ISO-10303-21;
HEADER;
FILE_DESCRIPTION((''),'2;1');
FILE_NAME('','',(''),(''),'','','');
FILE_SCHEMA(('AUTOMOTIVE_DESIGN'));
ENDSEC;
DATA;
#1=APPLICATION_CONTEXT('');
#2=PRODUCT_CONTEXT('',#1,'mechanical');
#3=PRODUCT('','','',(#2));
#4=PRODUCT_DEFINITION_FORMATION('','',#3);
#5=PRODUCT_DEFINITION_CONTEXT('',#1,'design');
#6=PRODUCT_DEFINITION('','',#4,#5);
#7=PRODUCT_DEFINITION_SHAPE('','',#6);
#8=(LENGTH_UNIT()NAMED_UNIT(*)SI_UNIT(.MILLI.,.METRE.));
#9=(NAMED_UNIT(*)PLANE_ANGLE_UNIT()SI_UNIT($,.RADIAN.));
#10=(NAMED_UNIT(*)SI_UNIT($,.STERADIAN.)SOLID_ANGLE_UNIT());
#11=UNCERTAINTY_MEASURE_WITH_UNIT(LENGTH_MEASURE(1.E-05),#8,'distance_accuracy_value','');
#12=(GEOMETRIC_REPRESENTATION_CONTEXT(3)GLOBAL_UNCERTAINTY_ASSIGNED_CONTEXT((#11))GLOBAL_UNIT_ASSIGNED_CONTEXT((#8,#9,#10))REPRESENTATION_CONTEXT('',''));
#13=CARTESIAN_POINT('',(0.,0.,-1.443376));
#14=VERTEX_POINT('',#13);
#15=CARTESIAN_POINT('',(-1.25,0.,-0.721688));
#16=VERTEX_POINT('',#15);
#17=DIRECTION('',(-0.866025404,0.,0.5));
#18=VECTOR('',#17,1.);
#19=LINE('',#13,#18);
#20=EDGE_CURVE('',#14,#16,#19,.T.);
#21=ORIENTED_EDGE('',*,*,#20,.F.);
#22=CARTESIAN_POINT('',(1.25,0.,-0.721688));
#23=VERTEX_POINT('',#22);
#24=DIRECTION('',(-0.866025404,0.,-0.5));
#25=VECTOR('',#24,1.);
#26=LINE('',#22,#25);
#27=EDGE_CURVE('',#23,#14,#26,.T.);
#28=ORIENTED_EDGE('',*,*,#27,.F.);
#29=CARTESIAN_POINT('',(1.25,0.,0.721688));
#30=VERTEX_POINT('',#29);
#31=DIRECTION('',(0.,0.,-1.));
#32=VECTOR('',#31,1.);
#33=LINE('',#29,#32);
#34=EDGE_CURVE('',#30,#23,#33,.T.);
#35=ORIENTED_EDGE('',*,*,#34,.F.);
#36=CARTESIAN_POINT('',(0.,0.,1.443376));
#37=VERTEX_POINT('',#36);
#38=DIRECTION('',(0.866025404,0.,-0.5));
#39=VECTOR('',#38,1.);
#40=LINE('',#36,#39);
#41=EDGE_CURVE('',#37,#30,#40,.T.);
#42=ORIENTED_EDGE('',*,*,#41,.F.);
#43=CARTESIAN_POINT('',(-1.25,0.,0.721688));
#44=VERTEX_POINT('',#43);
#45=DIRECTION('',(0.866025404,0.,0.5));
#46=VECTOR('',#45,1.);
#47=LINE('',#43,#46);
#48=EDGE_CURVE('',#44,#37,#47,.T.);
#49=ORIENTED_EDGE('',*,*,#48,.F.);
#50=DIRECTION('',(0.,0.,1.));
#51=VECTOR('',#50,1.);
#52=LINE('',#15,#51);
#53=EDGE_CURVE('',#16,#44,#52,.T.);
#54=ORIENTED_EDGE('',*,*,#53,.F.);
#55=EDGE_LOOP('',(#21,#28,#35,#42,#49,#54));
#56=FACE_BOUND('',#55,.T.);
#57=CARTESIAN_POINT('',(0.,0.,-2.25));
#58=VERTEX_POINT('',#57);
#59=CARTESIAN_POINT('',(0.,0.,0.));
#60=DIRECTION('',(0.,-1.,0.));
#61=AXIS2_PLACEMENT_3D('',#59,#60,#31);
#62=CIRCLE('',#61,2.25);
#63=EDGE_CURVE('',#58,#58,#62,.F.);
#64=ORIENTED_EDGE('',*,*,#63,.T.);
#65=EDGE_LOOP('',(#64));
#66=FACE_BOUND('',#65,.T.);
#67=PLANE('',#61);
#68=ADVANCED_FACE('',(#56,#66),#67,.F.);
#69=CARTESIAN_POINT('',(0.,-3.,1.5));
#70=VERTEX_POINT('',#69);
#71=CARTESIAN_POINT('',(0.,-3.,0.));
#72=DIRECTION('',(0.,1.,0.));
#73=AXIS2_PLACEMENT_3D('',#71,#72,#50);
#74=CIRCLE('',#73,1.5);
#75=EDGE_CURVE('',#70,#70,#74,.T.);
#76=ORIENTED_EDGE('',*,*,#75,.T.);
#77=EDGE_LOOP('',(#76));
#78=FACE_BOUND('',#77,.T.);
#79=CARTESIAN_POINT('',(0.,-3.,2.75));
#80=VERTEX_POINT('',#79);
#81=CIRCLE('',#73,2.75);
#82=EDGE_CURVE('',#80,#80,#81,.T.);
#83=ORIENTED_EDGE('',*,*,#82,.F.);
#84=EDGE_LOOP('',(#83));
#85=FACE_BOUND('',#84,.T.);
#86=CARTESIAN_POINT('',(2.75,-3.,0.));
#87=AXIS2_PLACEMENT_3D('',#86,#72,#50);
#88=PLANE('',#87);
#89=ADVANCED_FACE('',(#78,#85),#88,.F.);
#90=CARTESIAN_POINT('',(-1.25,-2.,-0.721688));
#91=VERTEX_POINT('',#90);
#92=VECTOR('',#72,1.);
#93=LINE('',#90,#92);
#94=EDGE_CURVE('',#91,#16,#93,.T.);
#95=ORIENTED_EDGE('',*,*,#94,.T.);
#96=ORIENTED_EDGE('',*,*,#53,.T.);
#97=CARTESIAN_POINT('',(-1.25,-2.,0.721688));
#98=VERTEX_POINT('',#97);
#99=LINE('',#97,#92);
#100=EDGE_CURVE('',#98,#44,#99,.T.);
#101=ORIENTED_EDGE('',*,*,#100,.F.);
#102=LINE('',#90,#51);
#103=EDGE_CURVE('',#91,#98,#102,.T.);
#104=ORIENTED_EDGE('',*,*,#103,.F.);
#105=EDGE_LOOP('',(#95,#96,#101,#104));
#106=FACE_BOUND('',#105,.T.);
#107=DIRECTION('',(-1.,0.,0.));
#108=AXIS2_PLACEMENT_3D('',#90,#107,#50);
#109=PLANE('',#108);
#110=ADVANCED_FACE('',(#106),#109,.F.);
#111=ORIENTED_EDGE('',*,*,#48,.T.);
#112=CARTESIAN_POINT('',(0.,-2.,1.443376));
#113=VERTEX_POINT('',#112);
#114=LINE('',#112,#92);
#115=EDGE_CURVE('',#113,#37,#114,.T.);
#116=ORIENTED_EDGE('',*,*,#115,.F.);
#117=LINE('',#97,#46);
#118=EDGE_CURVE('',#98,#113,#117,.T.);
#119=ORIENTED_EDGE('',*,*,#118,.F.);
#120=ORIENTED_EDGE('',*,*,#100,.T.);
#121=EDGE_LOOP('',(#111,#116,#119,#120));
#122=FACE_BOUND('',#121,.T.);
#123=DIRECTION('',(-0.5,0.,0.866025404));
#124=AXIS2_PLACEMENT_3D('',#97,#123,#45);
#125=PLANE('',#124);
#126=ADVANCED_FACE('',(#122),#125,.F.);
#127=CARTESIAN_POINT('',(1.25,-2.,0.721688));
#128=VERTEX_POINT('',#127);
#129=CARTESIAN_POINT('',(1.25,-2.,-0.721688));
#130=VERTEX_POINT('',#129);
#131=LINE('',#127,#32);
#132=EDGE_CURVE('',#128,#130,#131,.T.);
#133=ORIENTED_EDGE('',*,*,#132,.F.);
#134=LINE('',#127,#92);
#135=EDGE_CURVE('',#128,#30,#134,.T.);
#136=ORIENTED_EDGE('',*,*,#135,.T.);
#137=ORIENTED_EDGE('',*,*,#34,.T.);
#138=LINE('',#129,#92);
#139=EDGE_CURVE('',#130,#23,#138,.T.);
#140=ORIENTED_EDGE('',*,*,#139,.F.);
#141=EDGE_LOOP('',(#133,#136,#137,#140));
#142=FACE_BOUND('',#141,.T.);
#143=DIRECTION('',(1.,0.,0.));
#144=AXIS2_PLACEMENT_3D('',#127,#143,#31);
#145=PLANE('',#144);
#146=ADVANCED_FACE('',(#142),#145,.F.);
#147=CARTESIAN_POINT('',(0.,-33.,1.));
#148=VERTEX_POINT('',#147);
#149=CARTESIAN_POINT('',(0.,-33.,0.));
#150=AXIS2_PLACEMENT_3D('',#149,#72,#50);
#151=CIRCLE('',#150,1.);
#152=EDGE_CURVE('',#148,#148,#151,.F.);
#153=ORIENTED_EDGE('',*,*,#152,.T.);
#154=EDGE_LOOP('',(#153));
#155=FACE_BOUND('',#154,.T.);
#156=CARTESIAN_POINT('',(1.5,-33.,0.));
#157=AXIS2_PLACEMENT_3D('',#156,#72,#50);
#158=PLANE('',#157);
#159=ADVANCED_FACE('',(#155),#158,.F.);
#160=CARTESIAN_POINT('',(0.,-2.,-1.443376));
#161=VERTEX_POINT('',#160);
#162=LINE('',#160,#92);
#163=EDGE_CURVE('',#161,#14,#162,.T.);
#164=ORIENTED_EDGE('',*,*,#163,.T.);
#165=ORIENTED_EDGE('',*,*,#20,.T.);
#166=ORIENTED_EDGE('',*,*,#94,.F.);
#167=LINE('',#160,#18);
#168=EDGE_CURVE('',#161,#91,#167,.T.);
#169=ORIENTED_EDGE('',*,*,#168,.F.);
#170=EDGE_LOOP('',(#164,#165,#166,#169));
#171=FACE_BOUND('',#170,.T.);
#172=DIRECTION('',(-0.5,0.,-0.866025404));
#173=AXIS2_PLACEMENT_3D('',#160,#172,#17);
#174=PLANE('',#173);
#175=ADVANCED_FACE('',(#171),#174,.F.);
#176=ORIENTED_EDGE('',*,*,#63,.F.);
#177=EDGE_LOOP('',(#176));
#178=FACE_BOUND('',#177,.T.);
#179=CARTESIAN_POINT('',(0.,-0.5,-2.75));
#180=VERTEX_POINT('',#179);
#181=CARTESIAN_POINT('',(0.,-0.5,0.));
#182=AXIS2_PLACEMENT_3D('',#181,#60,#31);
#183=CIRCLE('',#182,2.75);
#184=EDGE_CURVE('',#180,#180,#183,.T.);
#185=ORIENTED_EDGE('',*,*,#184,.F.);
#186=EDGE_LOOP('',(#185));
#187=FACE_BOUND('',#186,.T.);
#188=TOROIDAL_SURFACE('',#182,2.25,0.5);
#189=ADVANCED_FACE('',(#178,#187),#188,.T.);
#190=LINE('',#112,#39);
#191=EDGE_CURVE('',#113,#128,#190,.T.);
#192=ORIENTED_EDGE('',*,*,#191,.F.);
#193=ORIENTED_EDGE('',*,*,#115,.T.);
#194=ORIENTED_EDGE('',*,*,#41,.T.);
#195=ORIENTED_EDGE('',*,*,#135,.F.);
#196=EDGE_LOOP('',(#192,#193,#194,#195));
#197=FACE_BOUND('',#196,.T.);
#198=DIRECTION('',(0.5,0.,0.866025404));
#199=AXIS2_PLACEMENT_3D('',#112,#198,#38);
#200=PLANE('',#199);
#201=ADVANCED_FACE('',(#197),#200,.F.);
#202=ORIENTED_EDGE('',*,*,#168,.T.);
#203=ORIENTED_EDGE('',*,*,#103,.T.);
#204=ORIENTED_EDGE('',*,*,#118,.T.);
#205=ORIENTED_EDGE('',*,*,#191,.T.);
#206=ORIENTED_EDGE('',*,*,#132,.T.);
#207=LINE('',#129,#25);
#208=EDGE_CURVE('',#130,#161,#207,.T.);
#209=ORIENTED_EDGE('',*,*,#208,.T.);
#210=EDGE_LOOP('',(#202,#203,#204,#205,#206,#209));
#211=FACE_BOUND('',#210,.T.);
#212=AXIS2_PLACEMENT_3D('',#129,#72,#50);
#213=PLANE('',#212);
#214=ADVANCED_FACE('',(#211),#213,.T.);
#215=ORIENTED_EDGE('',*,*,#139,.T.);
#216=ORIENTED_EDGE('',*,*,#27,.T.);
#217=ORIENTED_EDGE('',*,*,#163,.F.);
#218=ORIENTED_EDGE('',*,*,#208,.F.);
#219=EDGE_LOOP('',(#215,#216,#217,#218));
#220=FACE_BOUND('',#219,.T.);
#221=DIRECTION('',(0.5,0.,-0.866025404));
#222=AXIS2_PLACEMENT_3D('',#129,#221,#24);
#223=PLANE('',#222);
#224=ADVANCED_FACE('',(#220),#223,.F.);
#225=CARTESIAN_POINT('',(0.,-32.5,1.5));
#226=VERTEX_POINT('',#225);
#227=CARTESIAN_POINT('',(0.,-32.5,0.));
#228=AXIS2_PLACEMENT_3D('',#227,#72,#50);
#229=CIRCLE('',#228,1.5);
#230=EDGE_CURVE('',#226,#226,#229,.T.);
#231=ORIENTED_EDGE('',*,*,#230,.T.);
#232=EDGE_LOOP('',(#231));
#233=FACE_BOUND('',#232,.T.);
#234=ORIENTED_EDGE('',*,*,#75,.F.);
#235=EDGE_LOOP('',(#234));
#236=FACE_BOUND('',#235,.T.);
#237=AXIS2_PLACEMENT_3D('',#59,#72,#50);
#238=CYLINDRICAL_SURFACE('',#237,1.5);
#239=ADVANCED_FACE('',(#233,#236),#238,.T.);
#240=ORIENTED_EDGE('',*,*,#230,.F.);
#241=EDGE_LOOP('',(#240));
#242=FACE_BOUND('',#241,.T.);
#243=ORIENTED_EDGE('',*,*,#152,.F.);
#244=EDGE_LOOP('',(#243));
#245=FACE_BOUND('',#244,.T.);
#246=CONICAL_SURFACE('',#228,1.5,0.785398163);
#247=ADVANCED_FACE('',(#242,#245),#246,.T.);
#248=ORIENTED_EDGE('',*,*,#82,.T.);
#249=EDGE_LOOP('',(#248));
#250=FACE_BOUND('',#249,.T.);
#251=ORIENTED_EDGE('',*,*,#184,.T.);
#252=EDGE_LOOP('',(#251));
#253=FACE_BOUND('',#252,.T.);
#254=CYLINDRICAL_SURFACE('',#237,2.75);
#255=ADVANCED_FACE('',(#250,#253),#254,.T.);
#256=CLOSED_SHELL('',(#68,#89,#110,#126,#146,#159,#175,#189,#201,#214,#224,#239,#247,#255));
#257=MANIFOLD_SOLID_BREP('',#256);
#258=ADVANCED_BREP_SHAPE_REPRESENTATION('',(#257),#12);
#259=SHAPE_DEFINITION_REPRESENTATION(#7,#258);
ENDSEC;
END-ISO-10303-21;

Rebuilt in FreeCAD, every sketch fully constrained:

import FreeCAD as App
import Part
import Sketcher
Q = App.Units.Quantity


def edges_at(feature, points):
    """Names of the edges that pass closest to the given points."""
    edges = feature.Shape.Edges
    near = lambda p: min(range(len(edges)), key=lambda i: edges[i].distToShape(Part.Vertex(*p))[0])
    return sorted({f"Edge{near(p) + 1}" for p in points})

doc = App.newDocument("Part")
params = doc.addObject("Spreadsheet::Sheet", "Params")
for row, (alias, value) in enumerate([
    ("sketch1_height", "33 mm"),
    ("sketch1_height2", "30 mm"),
    ("sketch1_width", "1.5 mm"),
    ("sketch1_width2", "2.75 mm"),
    ("revolution_angle", "360 deg"),
    ("pocket1_length", "2 mm"),
    ("chamfer_size", "0.5 mm"),
    ("fillet_radius", "0.5 mm"),
], start=1):
    params.set(f"A{row}", alias)
    params.set(f"B{row}", "=" + value)
    params.setAlias(f"B{row}", alias)

body = doc.addObject("PartDesign::Body", "Body")

# Sketch on XY plane
sketch1 = body.newObject("Sketcher::SketchObject", "Sketch")
sketch1.AttachmentSupport = (doc.getObject("XY_Plane"), [""])
sketch1.MapMode = "FlatFace"
sketch1.addGeometry([
    Part.LineSegment(App.Vector(2.8, 0, 0), App.Vector(0, 0, 0)),  # 0
    Part.LineSegment(App.Vector(0, 0, 0), App.Vector(0, -33, 0)),  # 1
    Part.LineSegment(App.Vector(0, -33, 0), App.Vector(1.5, -33, 0)),  # 2
    Part.LineSegment(App.Vector(1.5, -33, 0), App.Vector(1.5, -3, 0)),  # 3
    Part.LineSegment(App.Vector(1.5, -3, 0), App.Vector(2.8, -3, 0)),  # 4
    Part.LineSegment(App.Vector(2.8, -3, 0), App.Vector(2.8, 0, 0)),  # 5
], False)
sketch1.addConstraint([
    Sketcher.Constraint("Coincident", 0, 2, 1, 1),
    Sketcher.Constraint("Coincident", 1, 2, 2, 1),
    Sketcher.Constraint("Coincident", 2, 2, 3, 1),
    Sketcher.Constraint("Coincident", 3, 2, 4, 1),
    Sketcher.Constraint("Coincident", 4, 2, 5, 1),
    Sketcher.Constraint("Coincident", 5, 2, 0, 1),
    Sketcher.Constraint("Horizontal", 0),
    Sketcher.Constraint("Vertical", 1),
    Sketcher.Constraint("Horizontal", 2),
    Sketcher.Constraint("Vertical", 3),
    Sketcher.Constraint("Horizontal", 4),
    Sketcher.Constraint("Vertical", 5),
    Sketcher.Constraint("Coincident", 0, 2, -1, 1),
    Sketcher.Constraint("DistanceY", 1, 2, 1, 1, 33.0),
    Sketcher.Constraint("DistanceY", 3, 1, 3, 2, 30.0),
    Sketcher.Constraint("DistanceX", 2, 1, 2, 2, 1.5),
    Sketcher.Constraint("DistanceX", 0, 2, 0, 1, 2.75),
])
sketch1.setExpression("Constraints[13]", "Params.sketch1_height")
sketch1.setExpression("Constraints[14]", "Params.sketch1_height2")
sketch1.setExpression("Constraints[15]", "Params.sketch1_width")
sketch1.setExpression("Constraints[16]", "Params.sketch1_width2")
revolution = body.newObject("PartDesign::Revolution", "Revolution")
revolution.Profile = sketch1
revolution.ReferenceAxis = (sketch1, ["V_Axis"])
revolution.setExpression("Angle", "Params.revolution_angle")

# Sketch on XZ plane
sketch2 = body.newObject("Sketcher::SketchObject", "Sketch001")
sketch2.AttachmentSupport = (doc.getObject("XZ_Plane"), [""])
sketch2.MapMode = "FlatFace"
sketch2.addGeometry([
    Part.LineSegment(App.Vector(1.2, -0.7, 0), App.Vector(0, -1.4, 0)),  # 0
    Part.LineSegment(App.Vector(0, -1.4, 0), App.Vector(-1.2, -0.7, 0)),  # 1
    Part.LineSegment(App.Vector(-1.2, -0.7, 0), App.Vector(-1.2, 0.7, 0)),  # 2
    Part.LineSegment(App.Vector(-1.2, 0.7, 0), App.Vector(0, 1.4, 0)),  # 3
    Part.LineSegment(App.Vector(0, 1.4, 0), App.Vector(1.2, 0.7, 0)),  # 4
    Part.LineSegment(App.Vector(1.2, 0.7, 0), App.Vector(1.2, -0.7, 0)),  # 5
], False)
sketch2.addConstraint([
    Sketcher.Constraint("Coincident", 0, 2, 1, 1),
    Sketcher.Constraint("Coincident", 1, 2, 2, 1),
    Sketcher.Constraint("Coincident", 2, 2, 3, 1),
    Sketcher.Constraint("Coincident", 3, 2, 4, 1),
    Sketcher.Constraint("Coincident", 4, 2, 5, 1),
    Sketcher.Constraint("Coincident", 5, 2, 0, 1),
    Sketcher.Constraint("Vertical", 2),
    Sketcher.Constraint("Vertical", 5),
    Sketcher.Constraint("Symmetric", 0, 2, 3, 2, -1, 1),
    Sketcher.Constraint("Symmetric", 1, 2, 4, 2, -1, 1),
    Sketcher.Constraint("PointOnObject", 0, 2, -2),
    Sketcher.Constraint("Parallel", 0, 3),
    Sketcher.Constraint("Horizontal", 2, 2, 4, 2),
    Sketcher.Constraint("Angle", 0, Q("-150 deg")),
    Sketcher.Constraint("DistanceX", 2, 2, 4, 2, 2.5),
    Sketcher.Constraint("DistanceY", 2, 1, 2, 2, 1.443376),
])
pocket1 = body.newObject("PartDesign::Pocket", "Pocket")
pocket1.Profile = sketch2
pocket1.setExpression("Length", "Params.pocket1_length")
pocket1.Reversed = True
doc.recompute()

chamfer = body.newObject("PartDesign::Chamfer", "Chamfer")
chamfer.Base = (pocket1, edges_at(pocket1, [(-1.5, -33, 0)]))
chamfer.setExpression("Size", "Params.chamfer_size")
doc.recompute()

fillet = body.newObject("PartDesign::Fillet", "Fillet")
fillet.Base = (chamfer, edges_at(chamfer, [(-2.75, 0, 0)]))
fillet.setExpression("Radius", "Params.fillet_radius")

doc.recompute()
